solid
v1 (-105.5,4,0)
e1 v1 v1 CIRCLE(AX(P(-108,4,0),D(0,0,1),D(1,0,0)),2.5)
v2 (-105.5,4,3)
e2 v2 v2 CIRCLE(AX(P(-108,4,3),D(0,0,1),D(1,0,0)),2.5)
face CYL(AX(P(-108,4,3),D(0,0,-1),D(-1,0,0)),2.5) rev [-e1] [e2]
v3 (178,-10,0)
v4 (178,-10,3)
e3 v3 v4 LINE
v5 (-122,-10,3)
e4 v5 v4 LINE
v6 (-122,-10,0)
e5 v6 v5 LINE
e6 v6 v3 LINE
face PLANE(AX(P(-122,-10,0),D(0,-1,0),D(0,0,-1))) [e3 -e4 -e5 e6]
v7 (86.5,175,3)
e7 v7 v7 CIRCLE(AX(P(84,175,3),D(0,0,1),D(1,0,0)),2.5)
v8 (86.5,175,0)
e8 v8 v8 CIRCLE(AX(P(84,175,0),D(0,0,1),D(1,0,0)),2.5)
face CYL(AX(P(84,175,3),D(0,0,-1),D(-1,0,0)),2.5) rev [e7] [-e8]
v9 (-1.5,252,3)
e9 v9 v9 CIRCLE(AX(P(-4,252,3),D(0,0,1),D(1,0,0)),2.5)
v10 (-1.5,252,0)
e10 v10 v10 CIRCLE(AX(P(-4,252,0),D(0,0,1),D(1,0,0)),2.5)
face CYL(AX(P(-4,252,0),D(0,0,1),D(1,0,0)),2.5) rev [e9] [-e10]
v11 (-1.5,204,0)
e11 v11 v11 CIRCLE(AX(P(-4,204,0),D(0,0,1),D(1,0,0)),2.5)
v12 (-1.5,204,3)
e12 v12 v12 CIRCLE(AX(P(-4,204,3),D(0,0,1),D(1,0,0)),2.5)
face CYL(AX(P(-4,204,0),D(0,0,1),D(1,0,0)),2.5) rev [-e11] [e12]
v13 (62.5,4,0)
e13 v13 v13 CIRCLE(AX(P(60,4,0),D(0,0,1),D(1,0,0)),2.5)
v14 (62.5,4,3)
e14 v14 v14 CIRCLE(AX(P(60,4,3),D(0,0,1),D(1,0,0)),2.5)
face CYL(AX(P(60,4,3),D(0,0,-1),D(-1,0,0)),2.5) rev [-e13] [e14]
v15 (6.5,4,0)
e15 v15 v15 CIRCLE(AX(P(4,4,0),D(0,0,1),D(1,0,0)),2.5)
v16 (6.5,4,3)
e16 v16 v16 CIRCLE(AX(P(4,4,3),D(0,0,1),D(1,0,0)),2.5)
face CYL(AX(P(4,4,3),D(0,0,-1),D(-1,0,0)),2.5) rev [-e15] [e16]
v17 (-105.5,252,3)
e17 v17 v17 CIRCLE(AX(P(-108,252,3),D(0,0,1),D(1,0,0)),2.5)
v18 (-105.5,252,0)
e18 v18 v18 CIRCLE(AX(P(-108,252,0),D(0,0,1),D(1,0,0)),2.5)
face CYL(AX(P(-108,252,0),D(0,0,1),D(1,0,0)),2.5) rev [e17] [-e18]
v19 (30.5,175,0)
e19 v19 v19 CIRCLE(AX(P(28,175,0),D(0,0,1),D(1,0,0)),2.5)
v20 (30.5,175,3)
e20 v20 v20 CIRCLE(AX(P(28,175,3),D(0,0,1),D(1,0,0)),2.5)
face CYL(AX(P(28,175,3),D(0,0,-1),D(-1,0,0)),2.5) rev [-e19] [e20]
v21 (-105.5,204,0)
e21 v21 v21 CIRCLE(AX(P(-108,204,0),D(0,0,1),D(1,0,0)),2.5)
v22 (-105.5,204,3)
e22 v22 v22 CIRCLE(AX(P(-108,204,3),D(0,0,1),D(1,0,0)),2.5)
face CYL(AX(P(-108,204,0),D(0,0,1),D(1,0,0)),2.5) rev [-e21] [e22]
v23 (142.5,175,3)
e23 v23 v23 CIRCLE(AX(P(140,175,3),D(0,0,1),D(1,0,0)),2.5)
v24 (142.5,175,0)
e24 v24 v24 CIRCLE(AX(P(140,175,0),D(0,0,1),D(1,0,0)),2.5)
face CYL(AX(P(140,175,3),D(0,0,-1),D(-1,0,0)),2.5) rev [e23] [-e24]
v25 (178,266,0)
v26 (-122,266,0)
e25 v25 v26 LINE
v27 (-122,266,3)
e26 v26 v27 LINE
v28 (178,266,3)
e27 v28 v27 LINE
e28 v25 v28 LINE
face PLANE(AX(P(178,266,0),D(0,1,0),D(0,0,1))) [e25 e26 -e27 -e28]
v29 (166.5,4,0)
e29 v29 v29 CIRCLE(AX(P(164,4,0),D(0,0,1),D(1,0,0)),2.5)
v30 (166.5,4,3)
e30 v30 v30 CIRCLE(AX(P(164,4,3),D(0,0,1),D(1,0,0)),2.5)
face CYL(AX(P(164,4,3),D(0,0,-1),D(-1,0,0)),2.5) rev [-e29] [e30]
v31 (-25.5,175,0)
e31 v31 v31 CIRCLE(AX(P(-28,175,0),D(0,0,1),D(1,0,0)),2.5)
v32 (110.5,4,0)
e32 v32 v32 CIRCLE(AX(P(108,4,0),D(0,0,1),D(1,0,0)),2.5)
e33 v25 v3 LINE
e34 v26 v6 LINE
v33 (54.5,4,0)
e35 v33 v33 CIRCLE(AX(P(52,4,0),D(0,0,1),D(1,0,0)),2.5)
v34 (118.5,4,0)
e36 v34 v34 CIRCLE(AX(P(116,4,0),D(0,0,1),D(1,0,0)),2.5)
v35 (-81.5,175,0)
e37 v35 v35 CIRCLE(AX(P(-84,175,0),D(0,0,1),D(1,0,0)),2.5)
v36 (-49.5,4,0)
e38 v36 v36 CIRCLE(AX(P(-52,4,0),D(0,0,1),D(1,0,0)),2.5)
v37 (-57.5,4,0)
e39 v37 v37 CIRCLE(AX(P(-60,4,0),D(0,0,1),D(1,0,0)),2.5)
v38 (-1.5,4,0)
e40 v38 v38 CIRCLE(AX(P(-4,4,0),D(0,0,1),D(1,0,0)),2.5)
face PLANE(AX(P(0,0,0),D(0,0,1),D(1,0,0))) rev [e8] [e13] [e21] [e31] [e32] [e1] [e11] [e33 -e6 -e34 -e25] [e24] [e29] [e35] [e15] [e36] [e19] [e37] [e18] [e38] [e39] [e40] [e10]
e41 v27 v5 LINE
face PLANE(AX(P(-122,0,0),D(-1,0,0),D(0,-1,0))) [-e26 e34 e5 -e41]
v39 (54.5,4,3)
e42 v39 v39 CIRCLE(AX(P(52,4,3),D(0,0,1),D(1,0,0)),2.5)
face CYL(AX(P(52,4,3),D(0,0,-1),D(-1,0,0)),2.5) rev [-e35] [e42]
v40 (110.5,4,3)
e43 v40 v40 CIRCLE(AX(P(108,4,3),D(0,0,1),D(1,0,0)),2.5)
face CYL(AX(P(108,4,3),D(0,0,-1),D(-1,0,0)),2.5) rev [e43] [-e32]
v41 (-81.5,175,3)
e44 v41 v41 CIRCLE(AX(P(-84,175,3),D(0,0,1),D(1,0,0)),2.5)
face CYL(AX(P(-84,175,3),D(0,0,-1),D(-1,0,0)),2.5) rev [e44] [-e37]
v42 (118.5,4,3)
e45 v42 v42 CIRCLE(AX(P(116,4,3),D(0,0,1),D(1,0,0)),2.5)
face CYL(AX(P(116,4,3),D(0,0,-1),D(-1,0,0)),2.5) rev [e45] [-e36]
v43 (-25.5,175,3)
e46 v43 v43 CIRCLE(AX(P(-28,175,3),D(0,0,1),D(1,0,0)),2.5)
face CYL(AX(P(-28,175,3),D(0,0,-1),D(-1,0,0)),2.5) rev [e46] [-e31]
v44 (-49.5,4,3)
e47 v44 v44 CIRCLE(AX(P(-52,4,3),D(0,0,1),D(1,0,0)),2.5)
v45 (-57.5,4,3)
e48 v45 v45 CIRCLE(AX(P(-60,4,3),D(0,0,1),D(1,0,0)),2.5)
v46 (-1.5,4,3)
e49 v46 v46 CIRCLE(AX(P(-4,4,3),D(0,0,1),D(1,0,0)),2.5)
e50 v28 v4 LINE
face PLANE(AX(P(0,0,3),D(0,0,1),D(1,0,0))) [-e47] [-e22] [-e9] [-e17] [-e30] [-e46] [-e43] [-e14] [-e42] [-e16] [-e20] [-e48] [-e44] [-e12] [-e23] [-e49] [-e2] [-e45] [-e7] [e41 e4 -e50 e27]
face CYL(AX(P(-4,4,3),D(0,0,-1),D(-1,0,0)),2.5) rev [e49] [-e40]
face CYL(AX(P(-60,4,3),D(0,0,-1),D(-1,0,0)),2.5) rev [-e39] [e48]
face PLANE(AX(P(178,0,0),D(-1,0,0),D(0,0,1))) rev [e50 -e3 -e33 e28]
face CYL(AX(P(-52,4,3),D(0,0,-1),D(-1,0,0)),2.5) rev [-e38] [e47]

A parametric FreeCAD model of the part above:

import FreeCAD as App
import Part
import Sketcher
Q = App.Units.Quantity


def add_polygon(sketch, points):
    """Adds a closed chain of lines whose ends are joined by coincident constraints."""
    first, n = sketch.GeometryCount, len(points)
    for a, b in zip(points, points[1:] + points[:1]):
        sketch.addGeometry(Part.LineSegment(App.Vector(*a, 0), App.Vector(*b, 0)), False)
    for i in range(n):
        sketch.addConstraint(Sketcher.Constraint("Coincident", first + i, 2, first + (i + 1) % n, 1))

doc = App.newDocument("Part")
params = doc.addObject("Spreadsheet::Sheet", "Params")
for row, (alias, value) in enumerate([
    ("sketch1_diameter", "5 mm"),
    ("sketch1_width", "280 mm"),
    ("sketch1_height", "200 mm"),
    ("pad1_length", "3 mm"),
    ("sketch2_width", "10 mm"),
    ("sketch2_height", "200 mm"),
    ("pad2_length", "3 mm"),
    ("sketch3_width", "300 mm"),
    ("sketch3_height", "10 mm"),
    ("pad3_length", "3 mm"),
    ("sketch4_diameter", "5 mm"),
    ("sketch4_width", "300 mm"),
    ("sketch4_height", "66 mm"),
    ("pad4_length", "3 mm"),
], start=1):
    params.set(f"A{row}", alias)
    params.set(f"B{row}", "=" + value)
    params.setAlias(f"B{row}", alias)

body = doc.addObject("PartDesign::Body", "Body")

# Sketch on XY plane
sketch1 = body.newObject("Sketcher::SketchObject", "Sketch")
sketch1.AttachmentSupport = (doc.getObject("XY_Plane"), [""])
sketch1.MapMode = "FlatFace"
add_polygon(sketch1, [(-112, 200), (-112, 0), (168, 0), (168, 200)])  # lines 0-3
sketch1.addGeometry(Part.Circle(App.Vector(-108, 4, 0), App.Vector(0, 0, 1), 2.5), False)  # 4
sketch1.addGeometry(Part.Circle(App.Vector(-60, 4, 0), App.Vector(0, 0, 1), 2.5), False)  # 5
sketch1.addGeometry(Part.Circle(App.Vector(-52, 4, 0), App.Vector(0, 0, 1), 2.5), False)  # 6
sketch1.addGeometry(Part.Circle(App.Vector(-4, 4, 0), App.Vector(0, 0, 1), 2.5), False)  # 7
sketch1.addGeometry(Part.Circle(App.Vector(4, 4, 0), App.Vector(0, 0, 1), 2.5), False)  # 8
sketch1.addGeometry(Part.Circle(App.Vector(52, 4, 0), App.Vector(0, 0, 1), 2.5), False)  # 9
sketch1.addGeometry(Part.Circle(App.Vector(60, 4, 0), App.Vector(0, 0, 1), 2.5), False)  # 10
sketch1.addGeometry(Part.Circle(App.Vector(108, 4, 0), App.Vector(0, 0, 1), 2.5), False)  # 11
sketch1.addGeometry(Part.Circle(App.Vector(116, 4, 0), App.Vector(0, 0, 1), 2.5), False)  # 12
sketch1.addGeometry(Part.Circle(App.Vector(164, 4, 0), App.Vector(0, 0, 1), 2.5), False)  # 13
sketch1.addGeometry(Part.Circle(App.Vector(-84, 175, 0), App.Vector(0, 0, 1), 2.5), False)  # 14
sketch1.addGeometry(Part.Circle(App.Vector(-28, 175, 0), App.Vector(0, 0, 1), 2.5), False)  # 15
sketch1.addGeometry(Part.Circle(App.Vector(28, 175, 0), App.Vector(0, 0, 1), 2.5), False)  # 16
sketch1.addGeometry(Part.Circle(App.Vector(84, 175, 0), App.Vector(0, 0, 1), 2.5), False)  # 17
sketch1.addGeometry(Part.Circle(App.Vector(140, 175, 0), App.Vector(0, 0, 1), 2.5), False)  # 18
sketch1.addConstraint(Sketcher.Constraint("Vertical", 0))
sketch1.addConstraint(Sketcher.Constraint("Horizontal", 1))
sketch1.addConstraint(Sketcher.Constraint("Vertical", 2))
sketch1.addConstraint(Sketcher.Constraint("Horizontal", 3))
sketch1.addConstraint(Sketcher.Constraint("Equal", 4, 5))
sketch1.addConstraint(Sketcher.Constraint("Equal", 5, 6))
sketch1.addConstraint(Sketcher.Constraint("Equal", 6, 7))
sketch1.addConstraint(Sketcher.Constraint("Equal", 7, 8))
sketch1.addConstraint(Sketcher.Constraint("Equal", 8, 9))
sketch1.addConstraint(Sketcher.Constraint("Equal", 9, 10))
sketch1.addConstraint(Sketcher.Constraint("Equal", 10, 11))
sketch1.addConstraint(Sketcher.Constraint("Equal", 11, 12))
sketch1.addConstraint(Sketcher.Constraint("Equal", 12, 13))
sketch1.addConstraint(Sketcher.Constraint("Equal", 13, 14))
sketch1.addConstraint(Sketcher.Constraint("Equal", 14, 15))
sketch1.addConstraint(Sketcher.Constraint("Equal", 15, 16))
sketch1.addConstraint(Sketcher.Constraint("Equal", 16, 17))
sketch1.addConstraint(Sketcher.Constraint("Equal", 17, 18))
sketch1.addConstraint(Sketcher.Constraint("Symmetric", 7, 3, 8, 3, -2))
sketch1.addConstraint(Sketcher.Constraint("Symmetric", 6, 3, 9, 3, -2))
sketch1.addConstraint(Sketcher.Constraint("Symmetric", 5, 3, 10, 3, -2))
sketch1.addConstraint(Sketcher.Constraint("Symmetric", 4, 3, 11, 3, -2))
sketch1.addConstraint(Sketcher.Constraint("Symmetric", 15, 3, 16, 3, -2))
sketch1.addConstraint(Sketcher.Constraint("Symmetric", 14, 3, 17, 3, -2))
sketch1.addConstraint(Sketcher.Constraint("PointOnObject", 0, 2, -1))
sketch1.addConstraint(Sketcher.Constraint("Horizontal", 4, 3, 5, 3))
sketch1.addConstraint(Sketcher.Constraint("Horizontal", 5, 3, 6, 3))
sketch1.addConstraint(Sketcher.Constraint("Horizontal", 6, 3, 7, 3))
sketch1.addConstraint(Sketcher.Constraint("Horizontal", 11, 3, 12, 3))
sketch1.addConstraint(Sketcher.Constraint("Horizontal", 12, 3, 13, 3))
sketch1.addConstraint(Sketcher.Constraint("Horizontal", 14, 3, 15, 3))
sketch1.addConstraint(Sketcher.Constraint("Horizontal", 17, 3, 18, 3))
sketch1.addConstraint(Sketcher.Constraint("Diameter", 4, Q("5 mm")))
sketch1.addConstraint(Sketcher.Constraint("DistanceX", 1, 1, 1, 2, Q("280 mm")))
sketch1.addConstraint(Sketcher.Constraint("DistanceY", 0, 2, 0, 1, Q("200 mm")))
sketch1.addConstraint(Sketcher.Constraint("DistanceX", 4, 3, -1, 1, Q("108 mm")))
sketch1.addConstraint(Sketcher.Constraint("DistanceY", -1, 1, 4, 3, Q("4 mm")))
sketch1.addConstraint(Sketcher.Constraint("DistanceX", 5, 3, -1, 1, Q("60 mm")))
sketch1.addConstraint(Sketcher.Constraint("DistanceX", 6, 3, -1, 1, Q("52 mm")))
sketch1.addConstraint(Sketcher.Constraint("DistanceX", 7, 3, -1, 1, Q("4 mm")))
sketch1.addConstraint(Sketcher.Constraint("DistanceX", -1, 1, 12, 3, Q("116 mm")))
sketch1.addConstraint(Sketcher.Constraint("DistanceX", -1, 1, 13, 3, Q("164 mm")))
sketch1.addConstraint(Sketcher.Constraint("DistanceX", 14, 3, -1, 1, Q("84 mm")))
sketch1.addConstraint(Sketcher.Constraint("DistanceY", -1, 1, 14, 3, Q("175 mm")))
sketch1.addConstraint(Sketcher.Constraint("DistanceX", 15, 3, -1, 1, Q("28 mm")))
sketch1.addConstraint(Sketcher.Constraint("DistanceX", -1, 1, 18, 3, Q("140 mm")))
sketch1.addConstraint(Sketcher.Constraint("DistanceX", 0, 2, -1, 1, Q("112 mm")))
sketch1.setExpression("Constraints[36]", "Params.sketch1_diameter")
sketch1.setExpression("Constraints[37]", "Params.sketch1_width")
sketch1.setExpression("Constraints[38]", "Params.sketch1_height")
pad1 = body.newObject("PartDesign::Pad", "Pad")
pad1.Profile = sketch1
pad1.setExpression("Length", "Params.pad1_length")

# Sketch on XY plane
sketch2 = body.newObject("Sketcher::SketchObject", "Sketch001")
sketch2.AttachmentSupport = (doc.getObject("XY_Plane"), [""])
sketch2.MapMode = "FlatFace"
sketch2.AttachmentOffset = App.Placement(App.Vector(0, 0, 3), App.Rotation())
add_polygon(sketch2, [(-122, 200), (-122, 0), (-112, 0), (-112, 200)])  # lines 0-3
add_polygon(sketch2, [(168, 200), (168, 0), (178, 0), (178, 200)])  # lines 4-7
sketch2.addConstraint(Sketcher.Constraint("Vertical", 0))
sketch2.addConstraint(Sketcher.Constraint("Horizontal", 1))
sketch2.addConstraint(Sketcher.Constraint("Vertical", 2))
sketch2.addConstraint(Sketcher.Constraint("Horizontal", 3))
sketch2.addConstraint(Sketcher.Constraint("Vertical", 4))
sketch2.addConstraint(Sketcher.Constraint("Horizontal", 5))
sketch2.addConstraint(Sketcher.Constraint("Vertical", 6))
sketch2.addConstraint(Sketcher.Constraint("Horizontal", 7))
sketch2.addConstraint(Sketcher.Constraint("PointOnObject", 0, 2, -1))
sketch2.addConstraint(Sketcher.Constraint("PointOnObject", 4, 2, -1))
sketch2.addConstraint(Sketcher.Constraint("Horizontal", 3, 2, 6, 2))
sketch2.addConstraint(Sketcher.Constraint("Equal", 3, 5))
sketch2.addConstraint(Sketcher.Constraint("DistanceX", 1, 1, 1, 2, Q("10 mm")))
sketch2.addConstraint(Sketcher.Constraint("DistanceY", 0, 2, 0, 1, Q("200 mm")))
sketch2.addConstraint(Sketcher.Constraint("DistanceX", 0, 2, -1, 1, Q("122 mm")))
sketch2.addConstraint(Sketcher.Constraint("DistanceX", -1, 1, 4, 2, Q("168 mm")))
sketch2.setExpression("Constraints[20]", "Params.sketch2_width")
sketch2.setExpression("Constraints[21]", "Params.sketch2_height")
pad2 = body.newObject("PartDesign::Pad", "Pad001")
pad2.Profile = sketch2
pad2.setExpression("Length", "Params.pad2_length")
pad2.Reversed = True

# Sketch on XY plane
sketch3 = body.newObject("Sketcher::SketchObject", "Sketch002")
sketch3.AttachmentSupport = (doc.getObject("XY_Plane"), [""])
sketch3.MapMode = "FlatFace"
sketch3.AttachmentOffset = App.Placement(App.Vector(0, 0, 3), App.Rotation())
add_polygon(sketch3, [(-122, 0), (-122, -10), (178, -10), (178, 0)])  # lines 0-3
sketch3.addConstraint(Sketcher.Constraint("Vertical", 0))
sketch3.addConstraint(Sketcher.Constraint("Horizontal", 1))
sketch3.addConstraint(Sketcher.Constraint("Vertical", 2))
sketch3.addConstraint(Sketcher.Constraint("Horizontal", 3))
sketch3.addConstraint(Sketcher.Constraint("PointOnObject", 2, 2, -1))
sketch3.addConstraint(Sketcher.Constraint("DistanceX", 1, 1, 1, 2, Q("300 mm")))
sketch3.addConstraint(Sketcher.Constraint("DistanceY", 0, 2, 0, 1, Q("10 mm")))
sketch3.addConstraint(Sketcher.Constraint("DistanceX", 0, 2, -1, 1, Q("122 mm")))
sketch3.setExpression("Constraints[9]", "Params.sketch3_width")
sketch3.setExpression("Constraints[10]", "Params.sketch3_height")
pad3 = body.newObject("PartDesign::Pad", "Pad002")
pad3.Profile = sketch3
pad3.setExpression("Length", "Params.pad3_length")
pad3.Reversed = True

# Sketch on XY plane
sketch4 = body.newObject("Sketcher::SketchObject", "Sketch003")
sketch4.AttachmentSupport = (doc.getObject("XY_Plane"), [""])
sketch4.MapMode = "FlatFace"
sketch4.AttachmentOffset = App.Placement(App.Vector(0, 0, 3), App.Rotation())
add_polygon(sketch4, [(-122, 266), (-122, 200), (178, 200), (178, 266)])  # lines 0-3
sketch4.addGeometry(Part.Circle(App.Vector(-108, 204, 0), App.Vector(0, 0, 1), 2.5), False)  # 4
sketch4.addGeometry(Part.Circle(App.Vector(-4, 204, 0), App.Vector(0, 0, 1), 2.5), False)  # 5
sketch4.addGeometry(Part.Circle(App.Vector(-108, 252, 0), App.Vector(0, 0, 1), 2.5), False)  # 6
sketch4.addGeometry(Part.Circle(App.Vector(-4, 252, 0), App.Vector(0, 0, 1), 2.5), False)  # 7
sketch4.addConstraint(Sketcher.Constraint("Vertical", 0))
sketch4.addConstraint(Sketcher.Constraint("Horizontal", 1))
sketch4.addConstraint(Sketcher.Constraint("Vertical", 2))
sketch4.addConstraint(Sketcher.Constraint("Horizontal", 3))
sketch4.addConstraint(Sketcher.Constraint("Equal", 4, 5))
sketch4.addConstraint(Sketcher.Constraint("Equal", 5, 6))
sketch4.addConstraint(Sketcher.Constraint("Equal", 6, 7))
sketch4.addConstraint(Sketcher.Constraint("Horizontal", 4, 3, 5, 3))
sketch4.addConstraint(Sketcher.Constraint("Horizontal", 6, 3, 7, 3))
sketch4.addConstraint(Sketcher.Constraint("Vertical", 4, 3, 6, 3))
sketch4.addConstraint(Sketcher.Constraint("Vertical", 5, 3, 7, 3))
sketch4.addConstraint(Sketcher.Constraint("Diameter", 4, Q("5 mm")))
sketch4.addConstraint(Sketcher.Constraint("DistanceX", 1, 1, 1, 2, Q("300 mm")))
sketch4.addConstraint(Sketcher.Constraint("DistanceY", 0, 2, 0, 1, Q("66 mm")))
sketch4.addConstraint(Sketcher.Constraint("DistanceX", 4, 3, -1, 1, Q("108 mm")))
sketch4.addConstraint(Sketcher.Constraint("DistanceY", -1, 1, 4, 3, Q("204 mm")))
sketch4.addConstraint(Sketcher.Constraint("DistanceX", 5, 3, -1, 1, Q("4 mm")))
sketch4.addConstraint(Sketcher.Constraint("DistanceY", -1, 1, 6, 3, Q("252 mm")))
sketch4.addConstraint(Sketcher.Constraint("DistanceX", 0, 2, -1, 1, Q("122 mm")))
sketch4.addConstraint(Sketcher.Constraint("DistanceY", -1, 1, 0, 2, Q("200 mm")))
sketch4.setExpression("Constraints[15]", "Params.sketch4_diameter")
sketch4.setExpression("Constraints[16]", "Params.sketch4_width")
sketch4.setExpression("Constraints[17]", "Params.sketch4_height")
pad4 = body.newObject("PartDesign::Pad", "Pad003")
pad4.Profile = sketch4
pad4.setExpression("Length", "Params.pad4_length")
pad4.Reversed = True

doc.recompute()
